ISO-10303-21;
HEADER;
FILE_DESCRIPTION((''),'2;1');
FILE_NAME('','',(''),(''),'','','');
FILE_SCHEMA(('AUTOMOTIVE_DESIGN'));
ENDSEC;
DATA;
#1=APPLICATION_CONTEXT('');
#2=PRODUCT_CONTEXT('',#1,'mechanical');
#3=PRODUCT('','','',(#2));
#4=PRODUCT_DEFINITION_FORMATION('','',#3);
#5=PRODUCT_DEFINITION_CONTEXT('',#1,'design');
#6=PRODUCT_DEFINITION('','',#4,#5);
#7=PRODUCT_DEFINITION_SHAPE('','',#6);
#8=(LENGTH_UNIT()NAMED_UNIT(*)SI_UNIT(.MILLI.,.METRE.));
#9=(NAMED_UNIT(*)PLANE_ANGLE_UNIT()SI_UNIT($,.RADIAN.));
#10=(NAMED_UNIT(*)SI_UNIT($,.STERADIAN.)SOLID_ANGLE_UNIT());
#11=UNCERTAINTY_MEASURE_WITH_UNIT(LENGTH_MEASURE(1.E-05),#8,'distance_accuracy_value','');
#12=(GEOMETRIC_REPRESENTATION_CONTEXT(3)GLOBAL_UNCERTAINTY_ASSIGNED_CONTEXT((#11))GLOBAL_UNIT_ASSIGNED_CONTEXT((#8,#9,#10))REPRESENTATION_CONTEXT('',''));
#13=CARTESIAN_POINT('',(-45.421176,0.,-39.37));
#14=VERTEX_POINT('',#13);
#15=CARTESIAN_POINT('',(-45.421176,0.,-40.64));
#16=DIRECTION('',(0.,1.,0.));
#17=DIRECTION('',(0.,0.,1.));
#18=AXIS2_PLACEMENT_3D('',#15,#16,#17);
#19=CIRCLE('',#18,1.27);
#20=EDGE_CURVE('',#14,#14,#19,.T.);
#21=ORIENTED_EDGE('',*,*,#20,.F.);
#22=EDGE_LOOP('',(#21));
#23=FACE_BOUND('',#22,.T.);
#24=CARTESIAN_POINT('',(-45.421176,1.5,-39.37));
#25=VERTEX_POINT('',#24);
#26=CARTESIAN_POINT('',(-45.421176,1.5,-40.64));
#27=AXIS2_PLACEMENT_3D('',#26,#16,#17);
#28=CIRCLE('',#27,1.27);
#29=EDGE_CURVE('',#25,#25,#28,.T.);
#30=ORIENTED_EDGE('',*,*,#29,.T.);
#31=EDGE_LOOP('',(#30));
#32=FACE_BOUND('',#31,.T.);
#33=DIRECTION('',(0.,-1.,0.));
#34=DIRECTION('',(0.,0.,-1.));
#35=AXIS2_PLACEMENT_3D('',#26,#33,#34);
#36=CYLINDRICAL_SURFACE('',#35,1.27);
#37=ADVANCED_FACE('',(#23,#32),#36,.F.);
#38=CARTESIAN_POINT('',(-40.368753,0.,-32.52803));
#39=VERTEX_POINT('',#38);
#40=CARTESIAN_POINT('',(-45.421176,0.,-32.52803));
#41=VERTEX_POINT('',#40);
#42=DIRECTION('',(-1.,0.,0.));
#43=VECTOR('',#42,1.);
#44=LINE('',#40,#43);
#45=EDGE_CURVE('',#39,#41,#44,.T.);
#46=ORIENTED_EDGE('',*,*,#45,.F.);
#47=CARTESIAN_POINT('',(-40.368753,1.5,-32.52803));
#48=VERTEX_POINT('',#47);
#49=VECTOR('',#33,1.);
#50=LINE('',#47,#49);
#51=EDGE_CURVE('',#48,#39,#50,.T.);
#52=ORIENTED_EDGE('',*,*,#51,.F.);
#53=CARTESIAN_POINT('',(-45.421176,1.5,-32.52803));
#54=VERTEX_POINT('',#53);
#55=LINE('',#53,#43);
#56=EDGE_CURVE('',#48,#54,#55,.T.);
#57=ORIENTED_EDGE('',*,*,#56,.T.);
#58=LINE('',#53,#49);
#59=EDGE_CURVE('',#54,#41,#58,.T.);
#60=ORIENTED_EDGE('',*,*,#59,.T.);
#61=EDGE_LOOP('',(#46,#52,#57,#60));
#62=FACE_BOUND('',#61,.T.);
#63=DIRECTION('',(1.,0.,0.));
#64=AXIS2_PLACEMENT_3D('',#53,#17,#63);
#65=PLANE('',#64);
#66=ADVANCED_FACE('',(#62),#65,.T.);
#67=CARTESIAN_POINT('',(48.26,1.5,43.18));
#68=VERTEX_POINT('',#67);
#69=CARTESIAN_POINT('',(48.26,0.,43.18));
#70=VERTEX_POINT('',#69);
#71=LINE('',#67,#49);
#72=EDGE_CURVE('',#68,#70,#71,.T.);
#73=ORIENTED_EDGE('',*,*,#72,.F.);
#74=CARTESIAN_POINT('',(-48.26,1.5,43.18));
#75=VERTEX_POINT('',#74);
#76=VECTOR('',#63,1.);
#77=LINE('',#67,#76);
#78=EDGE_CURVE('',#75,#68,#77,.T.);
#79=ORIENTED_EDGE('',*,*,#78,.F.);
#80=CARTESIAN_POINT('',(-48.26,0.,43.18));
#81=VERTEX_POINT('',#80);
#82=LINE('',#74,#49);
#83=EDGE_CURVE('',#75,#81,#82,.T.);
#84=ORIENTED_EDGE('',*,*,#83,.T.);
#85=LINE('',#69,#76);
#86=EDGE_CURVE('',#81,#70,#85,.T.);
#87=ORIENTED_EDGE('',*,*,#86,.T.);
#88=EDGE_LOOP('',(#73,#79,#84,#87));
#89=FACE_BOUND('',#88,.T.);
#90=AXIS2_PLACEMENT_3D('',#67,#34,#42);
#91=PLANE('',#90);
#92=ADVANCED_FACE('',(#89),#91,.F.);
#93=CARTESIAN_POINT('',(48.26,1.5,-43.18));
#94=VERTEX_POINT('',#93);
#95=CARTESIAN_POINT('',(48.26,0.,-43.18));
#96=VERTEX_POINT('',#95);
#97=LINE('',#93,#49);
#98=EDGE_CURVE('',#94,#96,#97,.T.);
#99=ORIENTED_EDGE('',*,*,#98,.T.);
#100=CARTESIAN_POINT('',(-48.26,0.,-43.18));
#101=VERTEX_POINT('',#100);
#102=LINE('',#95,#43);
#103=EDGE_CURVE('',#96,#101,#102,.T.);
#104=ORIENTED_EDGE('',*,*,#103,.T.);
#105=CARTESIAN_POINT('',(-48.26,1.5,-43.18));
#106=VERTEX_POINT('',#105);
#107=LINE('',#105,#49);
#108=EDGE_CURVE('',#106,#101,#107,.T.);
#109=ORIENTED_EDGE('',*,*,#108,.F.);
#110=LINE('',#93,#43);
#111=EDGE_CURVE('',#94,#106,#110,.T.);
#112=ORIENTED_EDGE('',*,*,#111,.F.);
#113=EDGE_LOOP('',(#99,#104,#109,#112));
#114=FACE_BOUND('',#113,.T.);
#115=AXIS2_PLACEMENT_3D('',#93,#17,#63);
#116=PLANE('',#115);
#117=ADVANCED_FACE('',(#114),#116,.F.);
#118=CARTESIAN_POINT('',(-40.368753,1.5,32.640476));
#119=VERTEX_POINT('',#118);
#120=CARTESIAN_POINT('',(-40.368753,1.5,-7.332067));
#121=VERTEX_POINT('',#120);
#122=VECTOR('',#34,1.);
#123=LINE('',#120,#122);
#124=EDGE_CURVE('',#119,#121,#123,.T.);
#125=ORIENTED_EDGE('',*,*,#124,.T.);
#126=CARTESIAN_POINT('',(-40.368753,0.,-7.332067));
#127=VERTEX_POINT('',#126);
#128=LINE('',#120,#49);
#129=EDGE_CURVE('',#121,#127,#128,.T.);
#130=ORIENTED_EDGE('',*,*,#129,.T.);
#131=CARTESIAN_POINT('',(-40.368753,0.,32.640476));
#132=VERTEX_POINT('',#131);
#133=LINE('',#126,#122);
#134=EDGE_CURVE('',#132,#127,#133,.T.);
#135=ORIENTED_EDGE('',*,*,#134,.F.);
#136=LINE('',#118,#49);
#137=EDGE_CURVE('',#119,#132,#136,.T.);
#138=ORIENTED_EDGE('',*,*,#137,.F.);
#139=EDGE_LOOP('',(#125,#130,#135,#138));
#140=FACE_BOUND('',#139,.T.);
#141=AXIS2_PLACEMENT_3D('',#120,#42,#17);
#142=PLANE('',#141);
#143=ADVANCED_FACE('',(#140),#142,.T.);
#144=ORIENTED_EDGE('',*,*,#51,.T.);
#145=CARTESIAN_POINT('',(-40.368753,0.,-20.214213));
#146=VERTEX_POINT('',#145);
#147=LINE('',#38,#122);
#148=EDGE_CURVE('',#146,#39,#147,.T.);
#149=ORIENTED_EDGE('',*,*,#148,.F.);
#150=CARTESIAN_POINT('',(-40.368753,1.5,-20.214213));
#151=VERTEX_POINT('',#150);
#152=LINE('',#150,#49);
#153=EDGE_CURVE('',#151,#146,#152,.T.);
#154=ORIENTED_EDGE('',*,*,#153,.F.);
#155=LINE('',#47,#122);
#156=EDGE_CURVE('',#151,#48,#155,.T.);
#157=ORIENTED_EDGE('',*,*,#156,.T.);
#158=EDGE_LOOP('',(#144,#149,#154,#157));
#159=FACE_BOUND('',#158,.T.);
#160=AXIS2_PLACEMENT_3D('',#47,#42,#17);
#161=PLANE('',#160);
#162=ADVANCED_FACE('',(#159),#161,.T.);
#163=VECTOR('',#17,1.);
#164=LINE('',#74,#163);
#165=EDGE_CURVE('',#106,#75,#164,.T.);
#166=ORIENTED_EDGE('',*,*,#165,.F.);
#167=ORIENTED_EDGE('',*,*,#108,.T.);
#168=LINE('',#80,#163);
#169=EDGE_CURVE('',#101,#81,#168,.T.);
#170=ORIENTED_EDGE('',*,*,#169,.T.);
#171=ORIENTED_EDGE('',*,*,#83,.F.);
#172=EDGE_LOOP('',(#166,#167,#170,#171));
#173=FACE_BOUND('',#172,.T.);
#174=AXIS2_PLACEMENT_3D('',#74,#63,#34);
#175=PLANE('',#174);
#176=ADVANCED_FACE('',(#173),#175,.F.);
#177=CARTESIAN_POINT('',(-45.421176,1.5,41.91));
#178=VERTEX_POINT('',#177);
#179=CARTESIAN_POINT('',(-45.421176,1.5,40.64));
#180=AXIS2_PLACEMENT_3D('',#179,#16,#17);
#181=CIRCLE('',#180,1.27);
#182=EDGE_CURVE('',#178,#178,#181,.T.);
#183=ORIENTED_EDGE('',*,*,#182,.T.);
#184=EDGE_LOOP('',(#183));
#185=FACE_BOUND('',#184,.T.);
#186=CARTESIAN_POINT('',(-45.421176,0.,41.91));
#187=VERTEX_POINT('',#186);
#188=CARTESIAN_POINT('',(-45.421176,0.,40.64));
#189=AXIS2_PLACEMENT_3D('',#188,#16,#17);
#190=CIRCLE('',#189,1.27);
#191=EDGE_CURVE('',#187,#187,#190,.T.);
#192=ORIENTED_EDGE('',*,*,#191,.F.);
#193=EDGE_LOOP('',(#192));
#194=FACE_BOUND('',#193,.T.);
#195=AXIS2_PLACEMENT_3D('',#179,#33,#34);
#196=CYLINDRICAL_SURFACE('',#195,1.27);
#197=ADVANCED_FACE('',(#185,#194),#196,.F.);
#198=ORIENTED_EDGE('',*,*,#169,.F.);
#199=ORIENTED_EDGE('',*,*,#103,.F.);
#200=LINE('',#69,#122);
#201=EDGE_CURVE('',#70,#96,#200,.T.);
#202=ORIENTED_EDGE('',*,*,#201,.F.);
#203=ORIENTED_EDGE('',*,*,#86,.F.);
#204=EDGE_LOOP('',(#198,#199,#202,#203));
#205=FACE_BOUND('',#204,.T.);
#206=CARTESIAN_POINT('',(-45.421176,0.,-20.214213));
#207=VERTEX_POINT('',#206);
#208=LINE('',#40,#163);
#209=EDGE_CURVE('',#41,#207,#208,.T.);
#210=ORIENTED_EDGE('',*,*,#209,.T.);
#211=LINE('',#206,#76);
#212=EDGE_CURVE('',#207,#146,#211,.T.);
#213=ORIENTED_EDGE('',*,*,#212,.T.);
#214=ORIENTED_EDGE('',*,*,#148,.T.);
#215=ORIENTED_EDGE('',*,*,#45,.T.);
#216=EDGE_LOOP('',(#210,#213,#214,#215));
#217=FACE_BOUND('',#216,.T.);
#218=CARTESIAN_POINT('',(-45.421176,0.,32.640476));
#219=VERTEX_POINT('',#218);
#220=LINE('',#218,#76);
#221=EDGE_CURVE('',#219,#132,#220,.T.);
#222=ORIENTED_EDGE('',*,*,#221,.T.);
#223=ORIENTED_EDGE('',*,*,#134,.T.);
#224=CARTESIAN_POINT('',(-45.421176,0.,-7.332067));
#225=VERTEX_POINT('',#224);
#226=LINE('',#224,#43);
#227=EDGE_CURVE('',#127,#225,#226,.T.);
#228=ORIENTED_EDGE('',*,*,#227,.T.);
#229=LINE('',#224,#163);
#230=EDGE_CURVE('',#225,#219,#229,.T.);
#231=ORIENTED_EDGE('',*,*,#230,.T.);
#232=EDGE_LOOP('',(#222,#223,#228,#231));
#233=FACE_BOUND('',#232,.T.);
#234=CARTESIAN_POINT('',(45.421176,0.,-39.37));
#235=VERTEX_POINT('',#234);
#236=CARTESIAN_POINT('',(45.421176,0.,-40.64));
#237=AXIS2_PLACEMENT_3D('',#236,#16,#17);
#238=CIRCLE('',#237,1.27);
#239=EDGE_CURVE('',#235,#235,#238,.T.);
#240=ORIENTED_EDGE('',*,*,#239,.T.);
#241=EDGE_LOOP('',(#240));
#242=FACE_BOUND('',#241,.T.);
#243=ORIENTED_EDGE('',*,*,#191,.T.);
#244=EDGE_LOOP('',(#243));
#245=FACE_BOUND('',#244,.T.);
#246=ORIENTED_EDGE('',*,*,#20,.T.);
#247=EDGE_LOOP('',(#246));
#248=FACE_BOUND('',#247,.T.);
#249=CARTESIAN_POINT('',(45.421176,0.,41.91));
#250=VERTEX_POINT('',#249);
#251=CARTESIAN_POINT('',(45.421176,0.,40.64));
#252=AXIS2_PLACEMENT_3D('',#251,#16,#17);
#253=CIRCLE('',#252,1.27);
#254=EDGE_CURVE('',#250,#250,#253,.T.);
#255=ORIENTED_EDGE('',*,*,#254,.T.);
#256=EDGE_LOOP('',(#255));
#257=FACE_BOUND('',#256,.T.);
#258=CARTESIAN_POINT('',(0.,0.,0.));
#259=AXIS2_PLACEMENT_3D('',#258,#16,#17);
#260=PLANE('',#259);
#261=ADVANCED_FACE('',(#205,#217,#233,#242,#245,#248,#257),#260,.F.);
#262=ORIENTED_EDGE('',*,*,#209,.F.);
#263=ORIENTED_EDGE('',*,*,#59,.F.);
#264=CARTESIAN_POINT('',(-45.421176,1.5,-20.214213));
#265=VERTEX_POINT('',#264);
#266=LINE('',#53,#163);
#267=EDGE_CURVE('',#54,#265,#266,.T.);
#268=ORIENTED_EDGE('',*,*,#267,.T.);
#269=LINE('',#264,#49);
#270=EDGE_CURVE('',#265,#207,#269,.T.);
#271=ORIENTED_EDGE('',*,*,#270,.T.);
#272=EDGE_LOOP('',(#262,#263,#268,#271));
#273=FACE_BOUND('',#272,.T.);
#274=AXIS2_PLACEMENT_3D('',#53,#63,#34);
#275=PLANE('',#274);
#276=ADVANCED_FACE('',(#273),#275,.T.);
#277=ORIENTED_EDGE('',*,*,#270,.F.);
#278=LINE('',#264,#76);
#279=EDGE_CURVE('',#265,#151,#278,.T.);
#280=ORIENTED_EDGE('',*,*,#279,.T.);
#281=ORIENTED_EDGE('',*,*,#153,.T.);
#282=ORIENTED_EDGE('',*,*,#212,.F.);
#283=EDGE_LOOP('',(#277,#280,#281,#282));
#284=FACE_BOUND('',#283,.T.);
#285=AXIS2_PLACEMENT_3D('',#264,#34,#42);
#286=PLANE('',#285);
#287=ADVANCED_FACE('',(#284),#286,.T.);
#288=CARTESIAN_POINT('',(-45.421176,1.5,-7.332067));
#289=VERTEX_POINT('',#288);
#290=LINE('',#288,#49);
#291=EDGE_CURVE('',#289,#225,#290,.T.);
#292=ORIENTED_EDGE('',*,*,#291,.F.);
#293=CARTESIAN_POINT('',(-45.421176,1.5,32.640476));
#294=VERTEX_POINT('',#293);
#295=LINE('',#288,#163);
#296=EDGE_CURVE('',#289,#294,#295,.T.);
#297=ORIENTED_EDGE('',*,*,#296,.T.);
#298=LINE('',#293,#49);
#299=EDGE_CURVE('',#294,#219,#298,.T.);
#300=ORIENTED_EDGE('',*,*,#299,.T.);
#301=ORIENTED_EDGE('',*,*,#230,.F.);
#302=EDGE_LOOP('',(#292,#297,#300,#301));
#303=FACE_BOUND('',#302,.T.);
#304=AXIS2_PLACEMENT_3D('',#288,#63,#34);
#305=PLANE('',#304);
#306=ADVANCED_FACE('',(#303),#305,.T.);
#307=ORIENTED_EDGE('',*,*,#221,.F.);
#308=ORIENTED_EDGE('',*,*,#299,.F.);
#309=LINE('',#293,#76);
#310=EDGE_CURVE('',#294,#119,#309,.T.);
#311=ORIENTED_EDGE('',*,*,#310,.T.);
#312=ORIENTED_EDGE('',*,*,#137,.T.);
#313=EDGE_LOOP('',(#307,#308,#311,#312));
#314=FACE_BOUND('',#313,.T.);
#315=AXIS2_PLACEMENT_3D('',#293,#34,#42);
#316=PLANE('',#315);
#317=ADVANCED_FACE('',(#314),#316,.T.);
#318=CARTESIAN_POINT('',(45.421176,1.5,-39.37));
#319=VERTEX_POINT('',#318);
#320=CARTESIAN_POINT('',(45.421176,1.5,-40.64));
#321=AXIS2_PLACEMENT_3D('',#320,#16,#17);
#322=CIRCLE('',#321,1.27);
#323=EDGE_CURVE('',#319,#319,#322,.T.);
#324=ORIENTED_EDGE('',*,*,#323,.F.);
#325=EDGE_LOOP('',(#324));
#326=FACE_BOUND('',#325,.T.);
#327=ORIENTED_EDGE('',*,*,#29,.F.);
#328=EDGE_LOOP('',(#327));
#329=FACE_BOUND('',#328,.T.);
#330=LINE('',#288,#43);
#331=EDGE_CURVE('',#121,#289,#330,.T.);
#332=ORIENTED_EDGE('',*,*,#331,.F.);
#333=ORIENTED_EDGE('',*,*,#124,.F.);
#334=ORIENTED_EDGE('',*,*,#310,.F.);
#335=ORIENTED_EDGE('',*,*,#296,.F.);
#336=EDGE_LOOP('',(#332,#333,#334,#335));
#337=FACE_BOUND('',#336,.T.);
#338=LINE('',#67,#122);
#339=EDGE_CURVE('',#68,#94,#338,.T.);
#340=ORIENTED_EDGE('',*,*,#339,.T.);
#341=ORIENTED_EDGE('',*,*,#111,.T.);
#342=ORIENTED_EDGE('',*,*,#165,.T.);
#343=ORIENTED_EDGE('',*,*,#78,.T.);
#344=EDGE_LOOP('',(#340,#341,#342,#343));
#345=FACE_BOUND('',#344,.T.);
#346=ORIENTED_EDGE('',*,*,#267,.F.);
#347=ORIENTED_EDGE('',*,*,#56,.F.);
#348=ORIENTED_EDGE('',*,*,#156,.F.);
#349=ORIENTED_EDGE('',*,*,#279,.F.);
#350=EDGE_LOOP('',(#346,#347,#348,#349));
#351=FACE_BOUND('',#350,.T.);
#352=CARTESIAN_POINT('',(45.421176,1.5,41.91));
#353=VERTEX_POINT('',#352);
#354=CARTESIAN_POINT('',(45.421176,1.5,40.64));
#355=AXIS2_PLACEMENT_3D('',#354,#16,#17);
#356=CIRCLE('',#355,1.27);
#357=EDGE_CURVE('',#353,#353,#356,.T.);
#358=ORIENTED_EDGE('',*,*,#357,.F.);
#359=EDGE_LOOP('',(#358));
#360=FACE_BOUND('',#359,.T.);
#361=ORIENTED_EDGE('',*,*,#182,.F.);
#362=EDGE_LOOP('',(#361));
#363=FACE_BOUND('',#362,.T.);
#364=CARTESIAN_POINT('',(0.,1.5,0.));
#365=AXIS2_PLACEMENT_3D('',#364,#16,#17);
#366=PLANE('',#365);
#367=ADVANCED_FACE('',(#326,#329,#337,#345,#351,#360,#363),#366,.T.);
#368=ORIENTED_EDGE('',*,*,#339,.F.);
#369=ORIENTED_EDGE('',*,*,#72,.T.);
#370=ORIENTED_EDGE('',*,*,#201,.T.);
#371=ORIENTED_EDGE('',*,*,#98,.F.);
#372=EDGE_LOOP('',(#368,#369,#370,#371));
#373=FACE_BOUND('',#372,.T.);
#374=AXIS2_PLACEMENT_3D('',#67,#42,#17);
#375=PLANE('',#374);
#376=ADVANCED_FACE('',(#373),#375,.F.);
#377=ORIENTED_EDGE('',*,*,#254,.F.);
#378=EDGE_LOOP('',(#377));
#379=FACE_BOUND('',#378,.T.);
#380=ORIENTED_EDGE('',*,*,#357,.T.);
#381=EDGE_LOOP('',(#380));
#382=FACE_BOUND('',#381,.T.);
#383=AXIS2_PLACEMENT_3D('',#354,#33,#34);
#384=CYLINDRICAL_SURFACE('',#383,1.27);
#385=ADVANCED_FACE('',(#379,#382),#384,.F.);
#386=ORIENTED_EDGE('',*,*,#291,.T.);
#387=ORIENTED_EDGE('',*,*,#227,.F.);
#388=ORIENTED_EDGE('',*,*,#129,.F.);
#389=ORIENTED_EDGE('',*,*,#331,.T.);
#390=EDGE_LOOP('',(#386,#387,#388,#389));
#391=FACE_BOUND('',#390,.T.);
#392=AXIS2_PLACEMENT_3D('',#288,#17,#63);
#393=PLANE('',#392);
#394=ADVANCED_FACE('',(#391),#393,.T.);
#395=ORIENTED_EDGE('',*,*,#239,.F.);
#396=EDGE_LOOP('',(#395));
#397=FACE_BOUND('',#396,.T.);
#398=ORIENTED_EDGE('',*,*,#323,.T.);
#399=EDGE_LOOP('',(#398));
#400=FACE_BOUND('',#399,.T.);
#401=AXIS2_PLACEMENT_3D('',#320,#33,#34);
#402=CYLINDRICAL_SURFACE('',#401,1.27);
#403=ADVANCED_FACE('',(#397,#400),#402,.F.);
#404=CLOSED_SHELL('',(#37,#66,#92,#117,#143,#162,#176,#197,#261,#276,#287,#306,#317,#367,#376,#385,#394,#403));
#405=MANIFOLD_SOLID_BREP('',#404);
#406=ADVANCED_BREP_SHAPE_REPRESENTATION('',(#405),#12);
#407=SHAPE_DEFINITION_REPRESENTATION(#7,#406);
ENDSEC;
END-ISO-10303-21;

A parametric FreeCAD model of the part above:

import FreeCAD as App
import Part
import Sketcher

V = App.Vector
Q = App.Units.Quantity


def add_polygon(sketch, points):
    """Adds a closed chain of lines whose ends are joined by coincident constraints."""
    first, n = sketch.GeometryCount, len(points)
    for a, b in zip(points, points[1:] + points[:1]):
        sketch.addGeometry(Part.LineSegment(App.Vector(*a, 0), App.Vector(*b, 0)), False)
    for i in range(n):
        sketch.addConstraint(Sketcher.Constraint("Coincident", first + i, 2, first + (i + 1) % n, 1))

doc = App.newDocument("Part")
body = doc.addObject("PartDesign::Body", "Body")

sketch1 = body.newObject("Sketcher::SketchObject", "Sketch")
sketch1.AttachmentSupport = (doc.getObject("XZ_Plane"), [""])
sketch1.MapMode = "FlatFace"
add_polygon(sketch1, [(-48.26, -43.18), (-48.26, 43.18), (48.26, 43.18), (48.26, -43.18)])
sketch1.addGeometry(Part.Circle(V(-45.421176, 40.64, 0), V(0, 0, 1), 1.27), False)
add_polygon(sketch1, [(-40.368753, 32.640476), (-45.421176, 32.640476), (-45.421176, -7.332067), (-40.368753, -7.332067)])
sketch1.addGeometry(Part.Circle(V(45.421176, 40.64, 0), V(0, 0, 1), 1.27), False)
add_polygon(sketch1, [(-40.368753, -20.214213), (-45.421176, -20.214213), (-45.421176, -32.52803), (-40.368753, -32.52803)])
sketch1.addGeometry(Part.Circle(V(-45.421176, -40.64, 0), V(0, 0, 1), 1.27), False)
sketch1.addGeometry(Part.Circle(V(45.421176, -40.64, 0), V(0, 0, 1), 1.27), False)
sketch1.addConstraint(Sketcher.Constraint("Vertical", 0))
sketch1.addConstraint(Sketcher.Constraint("Horizontal", 1))
sketch1.addConstraint(Sketcher.Constraint("Vertical", 2))
sketch1.addConstraint(Sketcher.Constraint("Horizontal", 3))
sketch1.addConstraint(Sketcher.Constraint("Horizontal", 5))
sketch1.addConstraint(Sketcher.Constraint("Vertical", 6))
sketch1.addConstraint(Sketcher.Constraint("Horizontal", 7))
sketch1.addConstraint(Sketcher.Constraint("Vertical", 8))
sketch1.addConstraint(Sketcher.Constraint("Horizontal", 10))
sketch1.addConstraint(Sketcher.Constraint("Vertical", 11))
sketch1.addConstraint(Sketcher.Constraint("Horizontal", 12))
sketch1.addConstraint(Sketcher.Constraint("Vertical", 13))
sketch1.addConstraint(Sketcher.Constraint("Equal", 4, 9))
sketch1.addConstraint(Sketcher.Constraint("Equal", 9, 14))
sketch1.addConstraint(Sketcher.Constraint("Equal", 14, 15))
sketch1.addConstraint(Sketcher.Constraint("Symmetric", 9, 3, 14, 3, -1, 1))
sketch1.addConstraint(Sketcher.Constraint("Symmetric", 4, 3, 15, 3, -1, 1))
sketch1.addConstraint(Sketcher.Constraint("Symmetric", 0, 2, 2, 2, -1, 1))
sketch1.addConstraint(Sketcher.Constraint("Symmetric", 4, 3, 9, 3, -2))
sketch1.addConstraint(Sketcher.Constraint("Vertical", 14, 3, 5, 2))
sketch1.addConstraint(Sketcher.Constraint("Vertical", 6, 2, 10, 2))
sketch1.addConstraint(Sketcher.Constraint("Vertical", 8, 2, 12, 2))
sketch1.addConstraint(Sketcher.Constraint("Diameter", 4, Q("0.1 in")))
sketch1.addConstraint(Sketcher.Constraint("DistanceX", 1, 1, 1, 2, Q("3.8 in")))
sketch1.addConstraint(Sketcher.Constraint("DistanceY", 0, 1, 0, 2, Q("3.4 in")))
sketch1.addConstraint(Sketcher.Constraint("DistanceY", -1, 1, 4, 3, Q("1.6 in")))
sketch1.addConstraint(Sketcher.Constraint("DistanceX", 5, 2, 5, 1, Q("5.052423 mm")))
sketch1.addConstraint(Sketcher.Constraint("DistanceY", 6, 2, 6, 1, Q("39.972542 mm")))
sketch1.addConstraint(Sketcher.Constraint("DistanceY", 11, 2, 11, 1, Q("12.313816 mm")))
sketch1.addConstraint(Sketcher.Constraint("DistanceY", 11, 2, -1, 1, Q("32.52803 mm")))
sketch1.addConstraint(Sketcher.Constraint("DistanceY", 10, 2, 5, 2, Q("52.854689 mm")))
sketch1.addConstraint(Sketcher.Constraint("DistanceX", 4, 3, -1, 1, Q("45.421176 mm")))
pad1 = body.newObject("PartDesign::Pad", "Pad")
pad1.Profile = sketch1
pad1.Length = 1.5
pad1.Reversed = True

doc.recompute()
